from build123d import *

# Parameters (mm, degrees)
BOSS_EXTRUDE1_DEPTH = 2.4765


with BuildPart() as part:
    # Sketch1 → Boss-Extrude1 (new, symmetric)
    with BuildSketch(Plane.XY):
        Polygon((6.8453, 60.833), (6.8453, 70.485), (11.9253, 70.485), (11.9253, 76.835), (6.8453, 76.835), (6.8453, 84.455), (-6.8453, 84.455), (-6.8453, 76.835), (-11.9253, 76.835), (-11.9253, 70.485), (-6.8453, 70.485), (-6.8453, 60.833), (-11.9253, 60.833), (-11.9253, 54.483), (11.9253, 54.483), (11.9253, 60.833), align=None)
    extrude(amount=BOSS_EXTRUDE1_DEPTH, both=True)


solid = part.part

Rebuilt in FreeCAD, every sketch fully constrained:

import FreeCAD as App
import Part
import Sketcher
from FreeCAD import Vector
Q = App.Units.Quantity

doc = App.newDocument("Part")
body = doc.addObject("PartDesign::Body", "Body")

# Sketch on XY plane
sketch1 = body.newObject("Sketcher::SketchObject", "Sketch")
sketch1.AttachmentSupport = (doc.getObject("XY_Plane"), [""])
sketch1.MapMode = "FlatFace"
sketch1.addGeometry([
    Part.LineSegment(Vector(7, 61, 0), Vector(7, 70, 0)),  # 0
    Part.LineSegment(Vector(7, 70, 0), Vector(12, 70, 0)),  # 1
    Part.LineSegment(Vector(12, 70, 0), Vector(12, 77, 0)),  # 2
    Part.LineSegment(Vector(12, 77, 0), Vector(7, 77, 0)),  # 3
    Part.LineSegment(Vector(7, 77, 0), Vector(7, 84, 0)),  # 4
    Part.LineSegment(Vector(7, 84, 0), Vector(-7, 84, 0)),  # 5
    Part.LineSegment(Vector(-7, 84, 0), Vector(-7, 77, 0)),  # 6
    Part.LineSegment(Vector(-7, 77, 0), Vector(-12, 77, 0)),  # 7
    Part.LineSegment(Vector(-12, 77, 0), Vector(-12, 70, 0)),  # 8
    Part.LineSegment(Vector(-12, 70, 0), Vector(-7, 70, 0)),  # 9
    Part.LineSegment(Vector(-7, 70, 0), Vector(-7, 61, 0)),  # 10
    Part.LineSegment(Vector(-7, 61, 0), Vector(-12, 61, 0)),  # 11
    Part.LineSegment(Vector(-12, 61, 0), Vector(-12, 54, 0)),  # 12
    Part.LineSegment(Vector(-12, 54, 0), Vector(12, 54, 0)),  # 13
    Part.LineSegment(Vector(12, 54, 0), Vector(12, 61, 0)),  # 14
    Part.LineSegment(Vector(12, 61, 0), Vector(7, 61, 0)),  # 15
], False)
sketch1.addConstraint([
    Sketcher.Constraint("Coincident", 0, 2, 1, 1),
    Sketcher.Constraint("Coincident", 1, 2, 2, 1),
    Sketcher.Constraint("Coincident", 2, 2, 3, 1),
    Sketcher.Constraint("Coincident", 3, 2, 4, 1),
    Sketcher.Constraint("Coincident", 4, 2, 5, 1),
    Sketcher.Constraint("Coincident", 5, 2, 6, 1),
    Sketcher.Constraint("Coincident", 6, 2, 7, 1),
    Sketcher.Constraint("Coincident", 7, 2, 8, 1),
    Sketcher.Constraint("Coincident", 8, 2, 9, 1),
    Sketcher.Constraint("Coincident", 9, 2, 10, 1),
    Sketcher.Constraint("Coincident", 10, 2, 11, 1),
    Sketcher.Constraint("Coincident", 11, 2, 12, 1),
    Sketcher.Constraint("Coincident", 12, 2, 13, 1),
    Sketcher.Constraint("Coincident", 13, 2, 14, 1),
    Sketcher.Constraint("Coincident", 14, 2, 15, 1),
    Sketcher.Constraint("Coincident", 15, 2, 0, 1),
    Sketcher.Constraint("Vertical", 0),
    Sketcher.Constraint("Horizontal", 1),
    Sketcher.Constraint("Vertical", 2),
    Sketcher.Constraint("Horizontal", 3),
    Sketcher.Constraint("Vertical", 4),
    Sketcher.Constraint("Horizontal", 5),
    Sketcher.Constraint("Vertical", 6),
    Sketcher.Constraint("Horizontal", 7),
    Sketcher.Constraint("Vertical", 8),
    Sketcher.Constraint("Horizontal", 9),
    Sketcher.Constraint("Vertical", 10),
    Sketcher.Constraint("Horizontal", 11),
    Sketcher.Constraint("Vertical", 12),
    Sketcher.Constraint("Horizontal", 13),
    Sketcher.Constraint("Vertical", 14),
    Sketcher.Constraint("Horizontal", 15),
    Sketcher.Constraint("Symmetric", 3, 2, 6, 2, -2),
    Sketcher.Constraint("Symmetric", 1, 2, 8, 2, -2),
    Sketcher.Constraint("Symmetric", 11, 2, 14, 2, -2),
    Sketcher.Constraint("Vertical", 0, 2, 3, 2),
    Sketcher.Constraint("Vertical", 6, 2, 9, 2),
    Sketcher.Constraint("Vertical", 8, 2, 11, 2),
    Sketcher.Constraint("Equal", 8, 12),
    Sketcher.Constraint("DistanceX", 1, 1, 1, 2, Q("0.2 in")),
    Sketcher.Constraint("DistanceY", 4, 1, 4, 2, Q("0.3 in")),
    Sketcher.Constraint("DistanceY", 0, 1, 0, 2, Q("0.38 in")),
    Sketcher.Constraint("DistanceY", 2, 1, 2, 2, Q("0.25 in")),
    Sketcher.Constraint("DistanceX", 5, 2, 5, 1, Q("0.539 in")),
    Sketcher.Constraint("DistanceY", -1, 1, 0, 2, Q("2.775 in")),
])
pad1 = body.newObject("PartDesign::Pad", "Pad")
pad1.Profile = sketch1
pad1.Length = Q("0.195 in")
pad1.Midplane = True

doc.recompute()
